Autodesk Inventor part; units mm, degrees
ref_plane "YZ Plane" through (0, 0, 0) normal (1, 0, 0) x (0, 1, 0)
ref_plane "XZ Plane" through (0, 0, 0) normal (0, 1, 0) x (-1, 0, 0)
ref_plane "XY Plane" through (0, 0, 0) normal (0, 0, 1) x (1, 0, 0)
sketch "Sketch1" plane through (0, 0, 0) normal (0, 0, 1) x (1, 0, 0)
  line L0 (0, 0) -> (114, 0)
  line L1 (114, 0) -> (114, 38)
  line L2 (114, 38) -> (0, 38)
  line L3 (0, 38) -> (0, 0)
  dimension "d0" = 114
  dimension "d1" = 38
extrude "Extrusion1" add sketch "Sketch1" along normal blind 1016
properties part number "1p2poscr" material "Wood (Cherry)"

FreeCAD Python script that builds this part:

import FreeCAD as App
import Part
import Sketcher

V = App.Vector
Q = App.Units.Quantity


def add_polygon(sketch, points):
    """Adds a closed chain of lines whose ends are joined by coincident constraints."""
    first, n = sketch.GeometryCount, len(points)
    for a, b in zip(points, points[1:] + points[:1]):
        sketch.addGeometry(Part.LineSegment(App.Vector(*a, 0), App.Vector(*b, 0)), False)
    for i in range(n):
        sketch.addConstraint(Sketcher.Constraint("Coincident", first + i, 2, first + (i + 1) % n, 1))

doc = App.newDocument("Part")
body = doc.addObject("PartDesign::Body", "Body")

# Sketch on XY plane
sketch1 = doc.addObject("Sketcher::SketchObject", "Sketch")
body.addObject(sketch1)
sketch1.AttachmentSupport = (doc.XY_Plane, [""])
sketch1.MapMode = "FlatFace"
add_polygon(sketch1, [(0, 38), (0, 0), (114, 0), (114, 38)])  # lines 0-3
sketch1.addConstraint([
    Sketcher.Constraint("Vertical", 0),
    Sketcher.Constraint("Horizontal", 1),
    Sketcher.Constraint("Vertical", 2),
    Sketcher.Constraint("Horizontal", 3),
    Sketcher.Constraint("Coincident", 0, 2, -1, 1),
    Sketcher.Constraint("DistanceX", 1, 1, 1, 2, Q("114 mm")),
    Sketcher.Constraint("DistanceY", 0, 2, 0, 1, Q("38 mm")),
])
pad1 = doc.addObject("PartDesign::Pad", "Pad")
body.addObject(pad1)
pad1.Profile = sketch1
pad1.Length = 1016

doc.recompute()
